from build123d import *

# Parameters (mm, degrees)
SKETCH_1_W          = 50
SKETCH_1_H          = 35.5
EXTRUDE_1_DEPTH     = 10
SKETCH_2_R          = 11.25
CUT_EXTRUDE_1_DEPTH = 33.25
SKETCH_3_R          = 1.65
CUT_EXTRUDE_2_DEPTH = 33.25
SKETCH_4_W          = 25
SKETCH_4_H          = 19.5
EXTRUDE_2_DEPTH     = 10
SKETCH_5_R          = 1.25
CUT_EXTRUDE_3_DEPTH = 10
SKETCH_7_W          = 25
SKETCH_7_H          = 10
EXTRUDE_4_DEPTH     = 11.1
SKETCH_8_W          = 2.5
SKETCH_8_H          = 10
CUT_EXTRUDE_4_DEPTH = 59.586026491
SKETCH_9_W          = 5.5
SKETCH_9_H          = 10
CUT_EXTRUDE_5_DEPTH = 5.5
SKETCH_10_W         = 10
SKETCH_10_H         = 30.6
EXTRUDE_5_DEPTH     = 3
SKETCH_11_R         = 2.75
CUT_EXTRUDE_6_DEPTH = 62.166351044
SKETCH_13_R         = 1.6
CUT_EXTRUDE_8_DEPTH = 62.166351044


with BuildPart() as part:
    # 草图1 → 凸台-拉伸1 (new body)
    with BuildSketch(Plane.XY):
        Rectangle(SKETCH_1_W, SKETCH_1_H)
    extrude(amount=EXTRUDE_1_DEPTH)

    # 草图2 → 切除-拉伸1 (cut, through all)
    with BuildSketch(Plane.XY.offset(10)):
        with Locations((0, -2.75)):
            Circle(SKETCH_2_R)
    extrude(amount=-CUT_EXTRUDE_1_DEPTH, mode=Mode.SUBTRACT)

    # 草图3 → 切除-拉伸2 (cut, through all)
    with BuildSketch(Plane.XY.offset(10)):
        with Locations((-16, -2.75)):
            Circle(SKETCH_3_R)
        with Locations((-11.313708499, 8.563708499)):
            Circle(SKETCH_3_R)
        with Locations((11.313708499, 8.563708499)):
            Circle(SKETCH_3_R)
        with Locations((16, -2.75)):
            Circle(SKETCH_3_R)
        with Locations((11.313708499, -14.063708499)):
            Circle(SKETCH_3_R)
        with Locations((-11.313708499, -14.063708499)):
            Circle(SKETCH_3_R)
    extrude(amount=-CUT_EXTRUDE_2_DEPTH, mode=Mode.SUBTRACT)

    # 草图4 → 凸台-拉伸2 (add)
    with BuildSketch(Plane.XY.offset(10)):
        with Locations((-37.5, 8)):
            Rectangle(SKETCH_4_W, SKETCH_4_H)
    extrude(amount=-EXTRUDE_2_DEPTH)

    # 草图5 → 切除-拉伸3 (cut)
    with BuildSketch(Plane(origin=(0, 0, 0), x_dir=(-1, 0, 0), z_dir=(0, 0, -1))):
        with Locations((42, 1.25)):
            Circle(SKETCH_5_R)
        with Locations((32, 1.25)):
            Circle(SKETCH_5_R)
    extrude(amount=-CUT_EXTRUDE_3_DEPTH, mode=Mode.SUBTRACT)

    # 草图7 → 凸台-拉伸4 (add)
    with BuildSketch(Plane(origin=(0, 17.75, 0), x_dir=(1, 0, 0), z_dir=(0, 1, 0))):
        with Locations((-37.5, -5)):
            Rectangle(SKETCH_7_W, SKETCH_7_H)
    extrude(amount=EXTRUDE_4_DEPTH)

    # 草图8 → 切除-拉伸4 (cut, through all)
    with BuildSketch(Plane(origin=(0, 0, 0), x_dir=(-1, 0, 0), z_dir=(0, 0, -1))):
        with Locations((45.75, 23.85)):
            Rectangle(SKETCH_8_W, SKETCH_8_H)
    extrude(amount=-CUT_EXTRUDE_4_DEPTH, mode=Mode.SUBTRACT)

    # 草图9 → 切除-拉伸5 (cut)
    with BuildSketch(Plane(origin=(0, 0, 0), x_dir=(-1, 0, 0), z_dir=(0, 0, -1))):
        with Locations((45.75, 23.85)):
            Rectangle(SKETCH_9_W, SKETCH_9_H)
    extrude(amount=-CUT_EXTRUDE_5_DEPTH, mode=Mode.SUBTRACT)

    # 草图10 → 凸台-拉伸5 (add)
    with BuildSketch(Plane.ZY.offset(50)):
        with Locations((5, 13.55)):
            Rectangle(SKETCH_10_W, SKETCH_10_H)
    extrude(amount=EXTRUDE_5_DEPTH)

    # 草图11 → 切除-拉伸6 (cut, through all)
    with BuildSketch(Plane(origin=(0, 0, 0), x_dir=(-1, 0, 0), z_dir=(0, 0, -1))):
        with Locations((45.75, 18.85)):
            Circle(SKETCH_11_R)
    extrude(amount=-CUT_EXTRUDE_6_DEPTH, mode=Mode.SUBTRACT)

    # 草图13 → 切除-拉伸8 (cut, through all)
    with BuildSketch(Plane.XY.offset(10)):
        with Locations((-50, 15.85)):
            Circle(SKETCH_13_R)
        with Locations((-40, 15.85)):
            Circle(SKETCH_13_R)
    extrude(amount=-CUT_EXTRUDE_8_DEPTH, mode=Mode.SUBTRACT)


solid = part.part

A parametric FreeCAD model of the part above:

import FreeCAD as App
import Part
import Sketcher
Q = App.Units.Quantity


def add_polygon(sketch, points):
    """Adds a closed chain of lines whose ends are joined by coincident constraints."""
    first, n = sketch.GeometryCount, len(points)
    for a, b in zip(points, points[1:] + points[:1]):
        sketch.addGeometry(Part.LineSegment(App.Vector(*a, 0), App.Vector(*b, 0)), False)
    for i in range(n):
        sketch.addConstraint(Sketcher.Constraint("Coincident", first + i, 2, first + (i + 1) % n, 1))

doc = App.newDocument("Part")
body = doc.addObject("PartDesign::Body", "Body")

sketch1 = body.newObject("Sketcher::SketchObject", "Sketch")
sketch1.AttachmentSupport = (doc.getObject("XY_Plane"), [""])
sketch1.MapMode = "FlatFace"
add_polygon(sketch1, [(-25, 18), (-25, -18), (25, -18), (25, 18)])
sketch1.addConstraint([
    Sketcher.Constraint("Vertical", 0),
    Sketcher.Constraint("Horizontal", 1),
    Sketcher.Constraint("Vertical", 2),
    Sketcher.Constraint("Horizontal", 3),
    Sketcher.Constraint("Symmetric", 0, 2, 2, 2, -1, 1),
    Sketcher.Constraint("DistanceX", 1, 1, 1, 2, Q("50 mm")),
    Sketcher.Constraint("DistanceY", 0, 2, 0, 1, Q("35.5 mm")),
])
pad1 = body.newObject("PartDesign::Pad", "Pad")
pad1.Profile = sketch1
pad1.Length = 10

sketch2 = body.newObject("Sketcher::SketchObject", "Sketch001")
sketch2.AttachmentSupport = (doc.getObject("XY_Plane"), [""])
sketch2.MapMode = "FlatFace"
sketch2.AttachmentOffset = App.Placement(App.Vector(0, 0, 10), App.Rotation())
sketch2.addGeometry(Part.Circle(App.Vector(0, -3, 0), App.Vector(0, 0, 1), 11), False)
sketch2.addConstraint([
    Sketcher.Constraint("PointOnObject", 0, 3, -2),
    Sketcher.Constraint("Diameter", 0, Q("22.5 mm")),
    Sketcher.Constraint("DistanceY", 0, 3, -1, 1, Q("2.75 mm")),
])
pocket1 = body.newObject("PartDesign::Pocket", "Pocket")
pocket1.Profile = sketch2
pocket1.Type = "ThroughAll"

sketch3 = body.newObject("Sketcher::SketchObject", "Sketch002")
sketch3.AttachmentSupport = (doc.getObject("XY_Plane"), [""])
sketch3.MapMode = "FlatFace"
sketch3.AttachmentOffset = App.Placement(App.Vector(0, 0, 10), App.Rotation())
sketch3.addGeometry([
    Part.Circle(App.Vector(-16, -2.8, 0), App.Vector(0, 0, 1), 1.6),
    Part.Circle(App.Vector(-11.3, 8.6, 0), App.Vector(0, 0, 1), 1.6),
    Part.Circle(App.Vector(11.3, 8.6, 0), App.Vector(0, 0, 1), 1.6),
    Part.Circle(App.Vector(16, -2.8, 0), App.Vector(0, 0, 1), 1.6),
    Part.Circle(App.Vector(11.3, -14.1, 0), App.Vector(0, 0, 1), 1.6),
    Part.Circle(App.Vector(-11.3, -14.1, 0), App.Vector(0, 0, 1), 1.6),
], False)
sketch3.addConstraint([
    Sketcher.Constraint("Equal", 0, 1),
    Sketcher.Constraint("Equal", 1, 2),
    Sketcher.Constraint("Equal", 2, 3),
    Sketcher.Constraint("Equal", 3, 4),
    Sketcher.Constraint("Equal", 4, 5),
    Sketcher.Constraint("Symmetric", 1, 3, 2, 3, -2),
    Sketcher.Constraint("Symmetric", 0, 3, 3, 3, -2),
    Sketcher.Constraint("Symmetric", 4, 3, 5, 3, -2),
    Sketcher.Constraint("Vertical", 2, 3, 4, 3),
    Sketcher.Constraint("Diameter", 0, Q("3.3 mm")),
    Sketcher.Constraint("DistanceX", 0, 3, -1, 1, Q("16 mm")),
    Sketcher.Constraint("DistanceY", 0, 3, -1, 1, Q("2.75 mm")),
    Sketcher.Constraint("DistanceX", 1, 3, -1, 1, Q("11.313708 mm")),
    Sketcher.Constraint("DistanceY", -1, 1, 1, 3, Q("8.563708 mm")),
    Sketcher.Constraint("DistanceY", 4, 3, -1, 1, Q("14.063708 mm")),
])
pocket2 = body.newObject("PartDesign::Pocket", "Pocket001")
pocket2.Profile = sketch3
pocket2.Type = "ThroughAll"

sketch4 = body.newObject("Sketcher::SketchObject", "Sketch003")
sketch4.AttachmentSupport = (doc.getObject("XY_Plane"), [""])
sketch4.MapMode = "FlatFace"
sketch4.AttachmentOffset = App.Placement(App.Vector(0, 0, 10), App.Rotation())
add_polygon(sketch4, [(-50, 18), (-50, -2), (-25, -2), (-25, 18)])
sketch4.addConstraint([
    Sketcher.Constraint("Vertical", 0),
    Sketcher.Constraint("Horizontal", 1),
    Sketcher.Constraint("Vertical", 2),
    Sketcher.Constraint("Horizontal", 3),
    Sketcher.Constraint("DistanceX", 1, 1, 1, 2, Q("25 mm")),
    Sketcher.Constraint("DistanceY", 0, 2, 0, 1, Q("19.5 mm")),
    Sketcher.Constraint("DistanceX", 0, 2, -1, 1, Q("50 mm")),
    Sketcher.Constraint("DistanceY", 0, 2, -1, 1, Q("1.75 mm")),
])
pad2 = body.newObject("PartDesign::Pad", "Pad001")
pad2.Profile = sketch4
pad2.Length = 10
pad2.Reversed = True

sketch5 = body.newObject("Sketcher::SketchObject", "Sketch004")
sketch5.AttachmentSupport = (doc.getObject("XY_Plane"), [""])
sketch5.MapMode = "FlatFace"
sketch5.addGeometry([
    Part.Circle(App.Vector(-42, 1.2, 0), App.Vector(0, 0, 1), 1.2),
    Part.Circle(App.Vector(-32, 1.2, 0), App.Vector(0, 0, 1), 1.2),
], False)
sketch5.addConstraint([
    Sketcher.Constraint("Equal", 0, 1),
    Sketcher.Constraint("Horizontal", 0, 3, 1, 3),
    Sketcher.Constraint("Diameter", 0, Q("2.5 mm")),
    Sketcher.Constraint("DistanceX", 0, 3, -1, 1, Q("42 mm")),
    Sketcher.Constraint("DistanceX", 1, 3, -1, 1, Q("32 mm")),
    Sketcher.Constraint("DistanceY", -1, 1, 0, 3, Q("1.25 mm")),
])
pocket3 = body.newObject("PartDesign::Pocket", "Pocket002")
pocket3.Profile = sketch5
pocket3.Length = 10
pocket3.Reversed = True

sketch6 = body.newObject("Sketcher::SketchObject", "Sketch005")
sketch6.AttachmentSupport = (doc.getObject("XZ_Plane"), [""])
sketch6.MapMode = "FlatFace"
sketch6.AttachmentOffset = App.Placement(App.Vector(0, 0, -17.75), App.Rotation())
add_polygon(sketch6, [(-50, 0), (-50, 10), (-25, 10), (-25, 0)])
sketch6.addConstraint([
    Sketcher.Constraint("Vertical", 0),
    Sketcher.Constraint("Horizontal", 1),
    Sketcher.Constraint("Vertical", 2),
    Sketcher.Constraint("Horizontal", 3),
    Sketcher.Constraint("PointOnObject", 2, 2, -1),
    Sketcher.Constraint("DistanceX", 1, 1, 1, 2, Q("25 mm")),
    Sketcher.Constraint("DistanceY", 0, 1, 0, 2, Q("10 mm")),
    Sketcher.Constraint("DistanceX", 0, 2, -1, 1, Q("50 mm")),
])
pad3 = body.newObject("PartDesign::Pad", "Pad002")
pad3.Profile = sketch6
pad3.Length = 11.1
pad3.Reversed = True

sketch7 = body.newObject("Sketcher::SketchObject", "Sketch006")
sketch7.AttachmentSupport = (doc.getObject("XY_Plane"), [""])
sketch7.MapMode = "FlatFace"
add_polygon(sketch7, [(-44.5, 28.9), (-44.5, 18.9), (-47, 18.9), (-47, 28.9)])
sketch7.addConstraint([
    Sketcher.Constraint("Vertical", 0),
    Sketcher.Constraint("Horizontal", 1),
    Sketcher.Constraint("Vertical", 2),
    Sketcher.Constraint("Horizontal", 3),
    Sketcher.Constraint("DistanceY", 0, 2, 0, 1, Q("10 mm")),
    Sketcher.Constraint("DistanceX", 1, 2, 1, 1, Q("2.5 mm")),
    Sketcher.Constraint("DistanceX", 1, 2, -1, 1, Q("47 mm")),
    Sketcher.Constraint("DistanceY", -1, 1, 0, 2, Q("18.85 mm")),
])
pocket4 = body.newObject("PartDesign::Pocket", "Pocket003")
pocket4.Profile = sketch7
pocket4.Type = "ThroughAll"
pocket4.Reversed = True

sketch8 = body.newObject("Sketcher::SketchObject", "Sketch007")
sketch8.AttachmentSupport = (doc.getObject("XY_Plane"), [""])
sketch8.MapMode = "FlatFace"
add_polygon(sketch8, [(-43, 29), (-43, 19), (-48, 19), (-48, 29)])
sketch8.addConstraint([
    Sketcher.Constraint("Vertical", 0),
    Sketcher.Constraint("Horizontal", 1),
    Sketcher.Constraint("Vertical", 2),
    Sketcher.Constraint("Horizontal", 3),
    Sketcher.Constraint("DistanceY", 0, 2, 0, 1, Q("10 mm")),
    Sketcher.Constraint("DistanceX", 1, 2, 1, 1, Q("5.5 mm")),
    Sketcher.Constraint("DistanceX", 0, 2, -1, 1, Q("43 mm")),
    Sketcher.Constraint("DistanceY", -1, 1, 0, 2, Q("18.85 mm")),
])
pocket5 = body.newObject("PartDesign::Pocket", "Pocket004")
pocket5.Profile = sketch8
pocket5.Length = 5.5
pocket5.Reversed = True

sketch9 = body.newObject("Sketcher::SketchObject", "Sketch008")
sketch9.AttachmentSupport = (doc.getObject("YZ_Plane"), [""])
sketch9.MapMode = "FlatFace"
sketch9.AttachmentOffset = App.Placement(App.Vector(0, 0, -50), App.Rotation())
add_polygon(sketch9, [(29, 0), (-2, 0), (-2, 10), (29, 10)])
sketch9.addConstraint([
    Sketcher.Constraint("Horizontal", 0),
    Sketcher.Constraint("Vertical", 1),
    Sketcher.Constraint("Horizontal", 2),
    Sketcher.Constraint("Vertical", 3),
    Sketcher.Constraint("PointOnObject", 0, 2, -1),
    Sketcher.Constraint("DistanceY", 1, 1, 1, 2, Q("10 mm")),
    Sketcher.Constraint("DistanceX", 0, 2, 0, 1, Q("30.6 mm")),
    Sketcher.Constraint("DistanceX", 0, 2, -1, 1, Q("1.75 mm")),
])
pad4 = body.newObject("PartDesign::Pad", "Pad003")
pad4.Profile = sketch9
pad4.Length = 3
pad4.Reversed = True

sketch10 = body.newObject("Sketcher::SketchObject", "Sketch009")
sketch10.AttachmentSupport = (doc.getObject("XY_Plane"), [""])
sketch10.MapMode = "FlatFace"
sketch10.addGeometry(Part.Circle(App.Vector(-45.8, 18.9, 0), App.Vector(0, 0, 1), 2.8), False)
sketch10.addConstraint([
    Sketcher.Constraint("Diameter", 0, Q("5.5 mm")),
    Sketcher.Constraint("DistanceX", 0, 3, -1, 1, Q("45.75 mm")),
    Sketcher.Constraint("DistanceY", -1, 1, 0, 3, Q("18.85 mm")),
])
pocket6 = body.newObject("PartDesign::Pocket", "Pocket005")
pocket6.Profile = sketch10
pocket6.Type = "ThroughAll"
pocket6.Reversed = True

sketch11 = body.newObject("Sketcher::SketchObject", "Sketch010")
sketch11.AttachmentSupport = (doc.getObject("XY_Plane"), [""])
sketch11.MapMode = "FlatFace"
sketch11.AttachmentOffset = App.Placement(App.Vector(0, 0, 10), App.Rotation())
sketch11.addGeometry([
    Part.Circle(App.Vector(-50, 15.8, 0), App.Vector(0, 0, 1), 1.6),
    Part.Circle(App.Vector(-40, 15.8, 0), App.Vector(0, 0, 1), 1.6),
], False)
sketch11.addConstraint([
    Sketcher.Constraint("Equal", 0, 1),
    Sketcher.Constraint("Horizontal", 0, 3, 1, 3),
    Sketcher.Constraint("Diameter", 0, Q("3.2 mm")),
    Sketcher.Constraint("DistanceX", 0, 3, -1, 1, Q("50 mm")),
    Sketcher.Constraint("DistanceX", 1, 3, -1, 1, Q("40 mm")),
    Sketcher.Constraint("DistanceY", -1, 1, 0, 3, Q("15.85 mm")),
])
pocket7 = body.newObject("PartDesign::Pocket", "Pocket006")
pocket7.Profile = sketch11
pocket7.Type = "ThroughAll"

doc.recompute()
